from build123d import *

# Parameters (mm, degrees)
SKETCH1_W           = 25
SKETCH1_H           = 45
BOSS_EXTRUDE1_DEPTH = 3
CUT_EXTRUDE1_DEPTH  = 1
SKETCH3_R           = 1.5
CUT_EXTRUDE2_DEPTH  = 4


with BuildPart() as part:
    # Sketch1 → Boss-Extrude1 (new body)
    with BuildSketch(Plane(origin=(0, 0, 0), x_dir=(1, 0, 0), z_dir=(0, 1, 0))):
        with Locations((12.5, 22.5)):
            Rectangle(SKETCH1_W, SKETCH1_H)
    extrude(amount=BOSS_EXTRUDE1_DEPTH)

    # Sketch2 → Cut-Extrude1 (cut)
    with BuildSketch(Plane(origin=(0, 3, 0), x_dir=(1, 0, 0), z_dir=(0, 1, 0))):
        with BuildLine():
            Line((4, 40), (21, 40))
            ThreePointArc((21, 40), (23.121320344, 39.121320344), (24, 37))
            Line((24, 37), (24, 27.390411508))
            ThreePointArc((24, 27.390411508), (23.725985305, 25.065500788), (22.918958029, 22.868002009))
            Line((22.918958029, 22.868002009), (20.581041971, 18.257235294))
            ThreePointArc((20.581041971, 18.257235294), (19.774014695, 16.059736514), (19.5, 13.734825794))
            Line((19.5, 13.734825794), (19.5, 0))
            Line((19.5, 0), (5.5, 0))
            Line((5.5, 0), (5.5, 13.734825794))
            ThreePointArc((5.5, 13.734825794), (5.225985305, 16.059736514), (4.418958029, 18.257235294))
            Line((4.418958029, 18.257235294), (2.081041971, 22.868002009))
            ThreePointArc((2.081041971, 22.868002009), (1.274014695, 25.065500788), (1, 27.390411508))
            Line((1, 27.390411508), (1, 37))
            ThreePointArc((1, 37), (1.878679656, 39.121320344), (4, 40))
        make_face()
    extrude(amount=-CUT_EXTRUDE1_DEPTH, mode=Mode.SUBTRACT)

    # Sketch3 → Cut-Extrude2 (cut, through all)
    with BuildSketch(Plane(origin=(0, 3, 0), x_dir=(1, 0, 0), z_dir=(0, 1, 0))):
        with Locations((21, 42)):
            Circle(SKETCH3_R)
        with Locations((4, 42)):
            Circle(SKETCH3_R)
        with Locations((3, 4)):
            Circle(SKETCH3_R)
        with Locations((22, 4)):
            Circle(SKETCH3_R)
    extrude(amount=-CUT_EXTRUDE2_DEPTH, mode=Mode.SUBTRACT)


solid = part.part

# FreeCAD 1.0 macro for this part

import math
import FreeCAD as App
import Part
import Sketcher
from FreeCAD import Vector

doc = App.newDocument("Part")
body = doc.addObject("PartDesign::Body", "Body")

# Sketch on XZ plane
sketch1 = doc.addObject("Sketcher::SketchObject", "Sketch")
body.addObject(sketch1)
sketch1.AttachmentSupport = (doc.XZ_Plane, [""])
sketch1.MapMode = "FlatFace"
sketch1.addGeometry([
    Part.LineSegment(Vector(0, -45, 0), Vector(0, 0, 0)),
    Part.LineSegment(Vector(0, 0, 0), Vector(25, 0, 0)),
    Part.LineSegment(Vector(25, 0, 0), Vector(25, -45, 0)),
    Part.LineSegment(Vector(25, -45, 0), Vector(0, -45, 0)),
], False)
sketch1.addConstraint([
    Sketcher.Constraint("Coincident", 0, 2, 1, 1),
    Sketcher.Constraint("Coincident", 1, 2, 2, 1),
    Sketcher.Constraint("Coincident", 2, 2, 3, 1),
    Sketcher.Constraint("Coincident", 3, 2, 0, 1),
    Sketcher.Constraint("Vertical", 0),
    Sketcher.Constraint("Horizontal", 1),
    Sketcher.Constraint("Vertical", 2),
    Sketcher.Constraint("Horizontal", 3),
    Sketcher.Constraint("Coincident", 0, 2, -1, 1),
    Sketcher.Constraint("DistanceX", 1, 1, 1, 2, 25.0),
    Sketcher.Constraint("DistanceY", 0, 1, 0, 2, 45.0),
])
pad1 = doc.addObject("PartDesign::Pad", "Pad")
body.addObject(pad1)
pad1.Profile = sketch1
pad1.Length = 3
pad1.Reversed = True

# Sketch on XZ plane
sketch2 = doc.addObject("Sketcher::SketchObject", "Sketch001")
body.addObject(sketch2)
sketch2.AttachmentSupport = (doc.XZ_Plane, [""])
sketch2.MapMode = "FlatFace"
sketch2.AttachmentOffset = App.Placement(Vector(0, 0, -3), App.Rotation())
sketch2.addGeometry([
    Part.LineSegment(Vector(21, -40, 0), Vector(4, -40, 0)),  # 0
    Part.ArcOfCircle(Part.Circle(Vector(4, -37, 0), Vector(0, 0, 1), 3), math.radians(180), math.radians(270)),  # 1
    Part.LineSegment(Vector(1, -37, 0), Vector(1, -27.4, 0)),  # 2
    Part.ArcOfCircle(Part.Circle(Vector(11, -27.4, 0), Vector(0, 0, 1), 10), math.radians(153), math.radians(180)),  # 3
    Part.LineSegment(Vector(2.1, -22.9, 0), Vector(4.4, -18.3, 0)),  # 4
    Part.ArcOfCircle(Part.Circle(Vector(-4.5, -13.7, 0), Vector(0, 0, 1), 10), math.radians(-27), math.radians(0)),  # 5
    Part.LineSegment(Vector(5.5, -13.7, 0), Vector(5.5, 0, 0)),  # 6
    Part.LineSegment(Vector(5.5, 0, 0), Vector(19.5, 0, 0)),  # 7
    Part.LineSegment(Vector(19.5, 0, 0), Vector(19.5, -13.7, 0)),  # 8
    Part.ArcOfCircle(Part.Circle(Vector(29.5, -13.7, 0), Vector(0, 0, 1), 10), math.radians(180), math.radians(207)),  # 9
    Part.LineSegment(Vector(20.6, -18.3, 0), Vector(22.9, -22.9, 0)),  # 10
    Part.ArcOfCircle(Part.Circle(Vector(14, -27.4, 0), Vector(0, 0, 1), 10), math.radians(0), math.radians(27)),  # 11
    Part.LineSegment(Vector(24, -27.4, 0), Vector(24, -37, 0)),  # 12
    Part.ArcOfCircle(Part.Circle(Vector(21, -37, 0), Vector(0, 0, 1), 3), math.radians(-90), math.radians(0)),  # 13
], False)
sketch2.addConstraint([
    Sketcher.Constraint("Tangent", 0, 2, 1, 2),
    Sketcher.Constraint("Tangent", 1, 1, 2, 1),
    Sketcher.Constraint("Tangent", 2, 2, 3, 2),
    Sketcher.Constraint("Tangent", 3, 1, 4, 1),
    Sketcher.Constraint("Tangent", 4, 2, 5, 1),
    Sketcher.Constraint("Tangent", 5, 2, 6, 1),
    Sketcher.Constraint("Coincident", 6, 2, 7, 1),
    Sketcher.Constraint("Coincident", 7, 2, 8, 1),
    Sketcher.Constraint("Tangent", 8, 2, 9, 1),
    Sketcher.Constraint("Tangent", 9, 2, 10, 1),
    Sketcher.Constraint("Tangent", 10, 2, 11, 2),
    Sketcher.Constraint("Tangent", 11, 1, 12, 1),
    Sketcher.Constraint("Tangent", 12, 2, 13, 2),
    Sketcher.Constraint("Tangent", 13, 1, 0, 1),
    Sketcher.Constraint("Horizontal", 0),
    Sketcher.Constraint("Vertical", 2),
    Sketcher.Constraint("Vertical", 6),
    Sketcher.Constraint("Horizontal", 7),
    Sketcher.Constraint("Vertical", 8),
    Sketcher.Constraint("Vertical", 12),
    Sketcher.Constraint("Equal", 3, 5),
    Sketcher.Constraint("Equal", 5, 9),
    Sketcher.Constraint("Equal", 9, 11),
    Sketcher.Constraint("Equal", 1, 13),
    Sketcher.Constraint("PointOnObject", 6, 2, -1),
    Sketcher.Constraint("Horizontal", 5, 3, 9, 3),
    Sketcher.Constraint("Horizontal", 3, 3, 11, 3),
    Sketcher.Constraint("Horizontal", 4, 2, 9, 2),
    Sketcher.Constraint("Radius", 1, 3.0),
    Sketcher.Constraint("Radius", 3, 10.0),
    Sketcher.Constraint("DistanceX", 0, 2, 0, 1, 17.0),
    Sketcher.Constraint("DistanceX", 7, 1, 7, 2, 14.0),
    Sketcher.Constraint("DistanceX", -1, 1, 1, 3, 4.0),
    Sketcher.Constraint("DistanceY", 1, 3, -1, 1, 37.0),
    Sketcher.Constraint("DistanceY", 2, 1, 2, 2, 9.609588),
    Sketcher.Constraint("DistanceY", 6, 1, 6, 2, 13.734826),
])
pocket1 = doc.addObject("PartDesign::Pocket", "Pocket")
body.addObject(pocket1)
pocket1.Profile = sketch2
pocket1.Length = 1
pocket1.Reversed = True

# Sketch on XZ plane
sketch3 = doc.addObject("Sketcher::SketchObject", "Sketch002")
body.addObject(sketch3)
sketch3.AttachmentSupport = (doc.XZ_Plane, [""])
sketch3.MapMode = "FlatFace"
sketch3.AttachmentOffset = App.Placement(Vector(0, 0, -3), App.Rotation())
sketch3.addGeometry([
    Part.Circle(Vector(21, -42, 0), Vector(0, 0, 1), 1.5),
    Part.Circle(Vector(4, -42, 0), Vector(0, 0, 1), 1.5),
    Part.Circle(Vector(3, -4, 0), Vector(0, 0, 1), 1.5),
    Part.Circle(Vector(22, -4, 0), Vector(0, 0, 1), 1.5),
], False)
sketch3.addConstraint([
    Sketcher.Constraint("Equal", 0, 1),
    Sketcher.Constraint("Equal", 1, 2),
    Sketcher.Constraint("Equal", 2, 3),
    Sketcher.Constraint("Horizontal", 0, 3, 1, 3),
    Sketcher.Constraint("Horizontal", 2, 3, 3, 3),
    Sketcher.Constraint("Diameter", 0, 3.0),
    Sketcher.Constraint("DistanceX", -1, 1, 0, 3, 21.0),
    Sketcher.Constraint("DistanceY", 0, 3, -1, 1, 42.0),
    Sketcher.Constraint("DistanceX", -1, 1, 1, 3, 4.0),
    Sketcher.Constraint("DistanceX", -1, 1, 2, 3, 3.0),
    Sketcher.Constraint("DistanceY", 2, 3, -1, 1, 4.0),
    Sketcher.Constraint("DistanceX", -1, 1, 3, 3, 22.0),
])
pocket2 = doc.addObject("PartDesign::Pocket", "Pocket001")
body.addObject(pocket2)
pocket2.Profile = sketch3
pocket2.Type = "ThroughAll"
pocket2.Reversed = True

doc.recompute()
